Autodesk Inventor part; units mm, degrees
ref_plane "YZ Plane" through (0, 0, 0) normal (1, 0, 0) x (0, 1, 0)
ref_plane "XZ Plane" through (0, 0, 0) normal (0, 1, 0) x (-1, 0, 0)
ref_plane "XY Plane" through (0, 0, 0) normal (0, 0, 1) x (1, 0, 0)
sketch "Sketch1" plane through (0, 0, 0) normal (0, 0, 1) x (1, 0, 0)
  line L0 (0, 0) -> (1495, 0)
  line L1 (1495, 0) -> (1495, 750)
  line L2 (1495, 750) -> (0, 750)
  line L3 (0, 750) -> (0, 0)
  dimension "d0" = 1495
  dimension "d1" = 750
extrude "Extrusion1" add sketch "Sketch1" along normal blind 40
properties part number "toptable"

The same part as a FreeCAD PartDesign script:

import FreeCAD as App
import Part
import Sketcher
from FreeCAD import Vector
Q = App.Units.Quantity


def add_polygon(sketch, points):
    """Adds a closed chain of lines whose ends are joined by coincident constraints."""
    first, n = sketch.GeometryCount, len(points)
    for a, b in zip(points, points[1:] + points[:1]):
        sketch.addGeometry(Part.LineSegment(App.Vector(*a, 0), App.Vector(*b, 0)), False)
    for i in range(n):
        sketch.addConstraint(Sketcher.Constraint("Coincident", first + i, 2, first + (i + 1) % n, 1))

doc = App.newDocument("Part")
body = doc.addObject("PartDesign::Body", "Body")

# Sketch on XY plane
sketch1 = body.newObject("Sketcher::SketchObject", "Sketch")
sketch1.AttachmentSupport = (doc.getObject("XY_Plane"), [""])
sketch1.MapMode = "FlatFace"
add_polygon(sketch1, [(0, 750), (0, 0), (1495, 0), (1495, 750)])  # lines 0-3
sketch1.addConstraint(Sketcher.Constraint("Vertical", 0))
sketch1.addConstraint(Sketcher.Constraint("Horizontal", 1))
sketch1.addConstraint(Sketcher.Constraint("Vertical", 2))
sketch1.addConstraint(Sketcher.Constraint("Horizontal", 3))
sketch1.addConstraint(Sketcher.Constraint("Coincident", 0, 2, -1, 1))
sketch1.addConstraint(Sketcher.Constraint("DistanceX", 1, 1, 1, 2, Q("1495 mm")))
sketch1.addConstraint(Sketcher.Constraint("DistanceY", 0, 2, 0, 1, Q("750 mm")))
pad1 = body.newObject("PartDesign::Pad", "Pad")
pad1.Profile = sketch1
pad1.Length = 40

doc.recompute()
